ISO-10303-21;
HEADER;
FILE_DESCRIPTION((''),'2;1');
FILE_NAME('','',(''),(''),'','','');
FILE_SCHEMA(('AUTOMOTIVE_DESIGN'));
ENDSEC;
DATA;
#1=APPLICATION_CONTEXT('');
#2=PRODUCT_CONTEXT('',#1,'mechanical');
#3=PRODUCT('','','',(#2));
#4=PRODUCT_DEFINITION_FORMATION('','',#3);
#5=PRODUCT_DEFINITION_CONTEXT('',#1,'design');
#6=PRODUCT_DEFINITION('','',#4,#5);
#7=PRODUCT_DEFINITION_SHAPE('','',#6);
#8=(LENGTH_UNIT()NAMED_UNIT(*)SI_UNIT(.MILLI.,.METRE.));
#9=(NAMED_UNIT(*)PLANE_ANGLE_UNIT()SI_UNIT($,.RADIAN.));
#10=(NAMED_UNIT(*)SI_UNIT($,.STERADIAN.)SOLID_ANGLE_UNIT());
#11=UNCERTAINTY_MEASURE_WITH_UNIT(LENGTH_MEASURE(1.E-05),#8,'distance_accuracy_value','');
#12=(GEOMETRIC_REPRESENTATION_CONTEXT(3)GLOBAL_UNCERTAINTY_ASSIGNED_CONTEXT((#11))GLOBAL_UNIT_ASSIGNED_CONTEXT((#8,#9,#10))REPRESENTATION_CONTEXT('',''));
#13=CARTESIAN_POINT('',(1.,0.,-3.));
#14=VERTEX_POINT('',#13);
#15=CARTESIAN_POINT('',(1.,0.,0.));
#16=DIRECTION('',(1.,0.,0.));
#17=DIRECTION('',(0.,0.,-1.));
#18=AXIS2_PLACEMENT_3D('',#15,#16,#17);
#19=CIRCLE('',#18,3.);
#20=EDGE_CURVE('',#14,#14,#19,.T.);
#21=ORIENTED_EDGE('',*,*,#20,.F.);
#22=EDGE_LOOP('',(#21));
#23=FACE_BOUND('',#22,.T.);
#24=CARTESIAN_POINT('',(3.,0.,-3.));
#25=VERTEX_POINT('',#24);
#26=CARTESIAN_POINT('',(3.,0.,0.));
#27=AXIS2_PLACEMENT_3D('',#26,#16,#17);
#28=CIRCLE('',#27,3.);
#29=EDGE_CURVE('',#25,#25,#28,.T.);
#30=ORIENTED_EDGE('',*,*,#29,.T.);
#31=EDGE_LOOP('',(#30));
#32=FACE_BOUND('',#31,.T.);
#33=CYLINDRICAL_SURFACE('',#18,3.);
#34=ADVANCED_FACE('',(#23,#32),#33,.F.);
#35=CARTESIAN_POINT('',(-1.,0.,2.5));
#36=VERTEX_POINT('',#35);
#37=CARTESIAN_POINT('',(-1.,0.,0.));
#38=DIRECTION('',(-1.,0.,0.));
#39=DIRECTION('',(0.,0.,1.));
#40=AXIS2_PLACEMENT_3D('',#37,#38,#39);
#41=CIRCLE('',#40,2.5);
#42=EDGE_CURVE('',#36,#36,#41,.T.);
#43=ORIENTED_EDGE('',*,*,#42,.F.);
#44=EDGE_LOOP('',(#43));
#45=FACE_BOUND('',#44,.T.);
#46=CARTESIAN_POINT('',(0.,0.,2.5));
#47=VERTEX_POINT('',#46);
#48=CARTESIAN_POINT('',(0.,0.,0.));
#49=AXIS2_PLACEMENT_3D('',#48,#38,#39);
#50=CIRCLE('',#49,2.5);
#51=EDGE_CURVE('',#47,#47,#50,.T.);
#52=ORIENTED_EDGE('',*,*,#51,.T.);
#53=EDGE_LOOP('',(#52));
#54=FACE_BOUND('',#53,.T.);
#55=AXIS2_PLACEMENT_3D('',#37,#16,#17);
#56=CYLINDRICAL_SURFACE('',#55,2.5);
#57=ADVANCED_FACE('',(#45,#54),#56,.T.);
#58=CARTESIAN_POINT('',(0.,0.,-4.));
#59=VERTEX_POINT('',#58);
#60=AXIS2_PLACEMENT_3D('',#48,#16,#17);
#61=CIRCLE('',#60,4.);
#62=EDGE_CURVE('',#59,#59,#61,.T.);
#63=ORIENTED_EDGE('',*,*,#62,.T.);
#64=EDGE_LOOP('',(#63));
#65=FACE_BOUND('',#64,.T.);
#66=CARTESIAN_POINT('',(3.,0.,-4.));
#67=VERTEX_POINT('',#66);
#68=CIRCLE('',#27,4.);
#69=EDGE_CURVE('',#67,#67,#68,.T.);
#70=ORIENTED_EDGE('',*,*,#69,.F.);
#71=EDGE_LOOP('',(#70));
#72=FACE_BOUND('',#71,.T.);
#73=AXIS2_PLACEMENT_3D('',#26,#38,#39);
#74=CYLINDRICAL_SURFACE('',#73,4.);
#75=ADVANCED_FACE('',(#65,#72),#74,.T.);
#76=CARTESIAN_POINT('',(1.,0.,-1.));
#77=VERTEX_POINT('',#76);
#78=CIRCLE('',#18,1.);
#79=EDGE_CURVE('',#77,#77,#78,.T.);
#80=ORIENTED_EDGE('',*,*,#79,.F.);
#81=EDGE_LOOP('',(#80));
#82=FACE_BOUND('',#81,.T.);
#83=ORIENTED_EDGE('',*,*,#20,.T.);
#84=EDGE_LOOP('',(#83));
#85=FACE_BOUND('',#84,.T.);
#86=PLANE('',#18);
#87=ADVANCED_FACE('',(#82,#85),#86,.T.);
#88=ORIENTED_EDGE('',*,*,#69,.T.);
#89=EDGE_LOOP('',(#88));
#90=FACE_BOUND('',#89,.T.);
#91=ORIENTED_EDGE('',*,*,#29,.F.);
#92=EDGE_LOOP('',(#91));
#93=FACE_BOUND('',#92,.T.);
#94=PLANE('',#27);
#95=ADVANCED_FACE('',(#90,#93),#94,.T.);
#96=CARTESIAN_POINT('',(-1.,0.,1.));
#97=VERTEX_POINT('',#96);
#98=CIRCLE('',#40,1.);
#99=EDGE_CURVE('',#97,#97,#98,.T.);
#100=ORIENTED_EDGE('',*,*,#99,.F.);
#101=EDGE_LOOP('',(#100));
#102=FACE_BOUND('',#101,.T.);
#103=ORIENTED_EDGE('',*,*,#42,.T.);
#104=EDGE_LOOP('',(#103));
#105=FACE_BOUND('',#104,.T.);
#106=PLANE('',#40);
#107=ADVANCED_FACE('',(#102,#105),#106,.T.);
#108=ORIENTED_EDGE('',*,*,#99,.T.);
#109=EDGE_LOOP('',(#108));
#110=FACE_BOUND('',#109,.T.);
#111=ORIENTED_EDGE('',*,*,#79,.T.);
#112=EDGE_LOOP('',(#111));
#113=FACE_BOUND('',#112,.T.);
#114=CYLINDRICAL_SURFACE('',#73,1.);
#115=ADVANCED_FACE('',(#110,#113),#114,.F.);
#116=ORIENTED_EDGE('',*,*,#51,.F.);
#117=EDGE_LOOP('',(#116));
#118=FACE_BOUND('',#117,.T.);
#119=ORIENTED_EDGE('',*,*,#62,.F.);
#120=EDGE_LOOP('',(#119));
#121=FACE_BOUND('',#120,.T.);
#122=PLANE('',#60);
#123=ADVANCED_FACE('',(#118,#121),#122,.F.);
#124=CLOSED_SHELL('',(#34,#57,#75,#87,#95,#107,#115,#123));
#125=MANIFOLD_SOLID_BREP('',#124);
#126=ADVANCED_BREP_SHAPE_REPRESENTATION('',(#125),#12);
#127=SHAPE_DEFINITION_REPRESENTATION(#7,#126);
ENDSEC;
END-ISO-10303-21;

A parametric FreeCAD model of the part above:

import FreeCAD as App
import Part
import Sketcher
Q = App.Units.Quantity

doc = App.newDocument("Part")
params = doc.addObject("Spreadsheet::Sheet", "Params")
for row, (alias, value) in enumerate([
    ("sketch1_diameter", "8 mm"),
    ("pad1_length", "3 mm"),
    ("sketch2_diameter", "6 mm"),
    ("pocket1_length", "2 mm"),
    ("sketch3_diameter", "5 mm"),
    ("pad2_length", "1 mm"),
    ("sketch4_diameter", "2 mm"),
], start=1):
    params.set(f"A{row}", alias)
    params.set(f"B{row}", "=" + value)
    params.setAlias(f"B{row}", alias)

body = doc.addObject("PartDesign::Body", "Body")

# Sketch on YZ plane
sketch1 = doc.addObject("Sketcher::SketchObject", "Sketch")
body.addObject(sketch1)
sketch1.AttachmentSupport = (doc.YZ_Plane, [""])
sketch1.MapMode = "FlatFace"
sketch1.addGeometry(Part.Circle(App.Vector(0, 0, 0), App.Vector(0, 0, 1), 4), False)
sketch1.addConstraint([
    Sketcher.Constraint("Coincident", 0, 3, -1, 1),
    Sketcher.Constraint("Diameter", 0, Q("8 mm")),
])
sketch1.setExpression("Constraints[1]", "Params.sketch1_diameter")
pad1 = doc.addObject("PartDesign::Pad", "Pad")
body.addObject(pad1)
pad1.Profile = sketch1
pad1.setExpression("Length", "Params.pad1_length")

# Sketch on YZ plane
sketch2 = doc.addObject("Sketcher::SketchObject", "Sketch001")
body.addObject(sketch2)
sketch2.AttachmentSupport = (doc.YZ_Plane, [""])
sketch2.MapMode = "FlatFace"
sketch2.AttachmentOffset = App.Placement(App.Vector(0, 0, 3), App.Rotation())
sketch2.addGeometry(Part.Circle(App.Vector(0, 0, 0), App.Vector(0, 0, 1), 3), False)
sketch2.addConstraint([
    Sketcher.Constraint("Coincident", 0, 3, -1, 1),
    Sketcher.Constraint("Diameter", 0, Q("6 mm")),
])
sketch2.setExpression("Constraints[1]", "Params.sketch2_diameter")
pocket1 = doc.addObject("PartDesign::Pocket", "Pocket")
body.addObject(pocket1)
pocket1.Profile = sketch2
pocket1.setExpression("Length", "Params.pocket1_length")

# Sketch on YZ plane
sketch3 = doc.addObject("Sketcher::SketchObject", "Sketch002")
body.addObject(sketch3)
sketch3.AttachmentSupport = (doc.YZ_Plane, [""])
sketch3.MapMode = "FlatFace"
sketch3.addGeometry(Part.Circle(App.Vector(0, 0, 0), App.Vector(0, 0, 1), 2.5), False)
sketch3.addConstraint([
    Sketcher.Constraint("Coincident", 0, 3, -1, 1),
    Sketcher.Constraint("Diameter", 0, Q("5 mm")),
])
sketch3.setExpression("Constraints[1]", "Params.sketch3_diameter")
pad2 = doc.addObject("PartDesign::Pad", "Pad001")
body.addObject(pad2)
pad2.Profile = sketch3
pad2.setExpression("Length", "Params.pad2_length")
pad2.Reversed = True

# Sketch on YZ plane
sketch4 = doc.addObject("Sketcher::SketchObject", "Sketch003")
body.addObject(sketch4)
sketch4.AttachmentSupport = (doc.YZ_Plane, [""])
sketch4.MapMode = "FlatFace"
sketch4.AttachmentOffset = App.Placement(App.Vector(0, 0, -1), App.Rotation())
sketch4.addGeometry(Part.Circle(App.Vector(0, 0, 0), App.Vector(0, 0, 1), 1), False)
sketch4.addConstraint([
    Sketcher.Constraint("Coincident", 0, 3, -1, 1),
    Sketcher.Constraint("Diameter", 0, Q("2 mm")),
])
sketch4.setExpression("Constraints[1]", "Params.sketch4_diameter")
pocket2 = doc.addObject("PartDesign::Pocket", "Pocket001")
body.addObject(pocket2)
pocket2.Profile = sketch4
pocket2.Type = "ThroughAll"
pocket2.Reversed = True

doc.recompute()
